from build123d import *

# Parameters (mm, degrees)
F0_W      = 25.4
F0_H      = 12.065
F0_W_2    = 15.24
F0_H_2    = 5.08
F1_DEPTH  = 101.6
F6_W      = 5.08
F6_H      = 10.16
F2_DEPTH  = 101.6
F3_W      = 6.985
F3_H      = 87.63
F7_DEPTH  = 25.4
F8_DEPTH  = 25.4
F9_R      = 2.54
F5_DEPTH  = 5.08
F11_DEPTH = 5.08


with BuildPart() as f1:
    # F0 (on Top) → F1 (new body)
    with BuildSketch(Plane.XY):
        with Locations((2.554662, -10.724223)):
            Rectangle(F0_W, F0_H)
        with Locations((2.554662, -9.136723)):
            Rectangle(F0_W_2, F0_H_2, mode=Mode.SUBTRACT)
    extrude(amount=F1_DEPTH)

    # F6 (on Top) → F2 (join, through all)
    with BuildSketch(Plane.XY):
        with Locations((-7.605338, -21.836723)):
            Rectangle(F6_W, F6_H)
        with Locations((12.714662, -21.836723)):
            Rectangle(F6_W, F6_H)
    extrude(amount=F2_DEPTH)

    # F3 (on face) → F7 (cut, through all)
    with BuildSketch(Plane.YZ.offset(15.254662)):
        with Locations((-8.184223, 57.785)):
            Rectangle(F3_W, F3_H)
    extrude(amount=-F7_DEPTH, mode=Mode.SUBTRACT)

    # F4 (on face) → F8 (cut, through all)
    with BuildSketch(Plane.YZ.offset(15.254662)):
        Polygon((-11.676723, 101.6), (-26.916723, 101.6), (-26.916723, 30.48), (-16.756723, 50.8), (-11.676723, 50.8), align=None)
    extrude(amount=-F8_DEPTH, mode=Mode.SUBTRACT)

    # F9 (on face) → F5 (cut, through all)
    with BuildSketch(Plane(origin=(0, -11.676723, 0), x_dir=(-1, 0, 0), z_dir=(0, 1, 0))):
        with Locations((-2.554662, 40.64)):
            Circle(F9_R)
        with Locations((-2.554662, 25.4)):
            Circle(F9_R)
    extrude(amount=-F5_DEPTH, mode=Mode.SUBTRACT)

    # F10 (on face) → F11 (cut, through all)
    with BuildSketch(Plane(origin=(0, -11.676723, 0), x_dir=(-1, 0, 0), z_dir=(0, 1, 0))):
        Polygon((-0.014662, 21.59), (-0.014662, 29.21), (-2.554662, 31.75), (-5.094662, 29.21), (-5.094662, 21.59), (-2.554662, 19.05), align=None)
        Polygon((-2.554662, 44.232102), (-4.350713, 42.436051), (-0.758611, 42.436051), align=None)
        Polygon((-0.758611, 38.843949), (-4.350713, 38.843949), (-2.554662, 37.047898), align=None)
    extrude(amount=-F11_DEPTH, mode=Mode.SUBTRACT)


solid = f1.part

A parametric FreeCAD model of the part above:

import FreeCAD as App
import Part
import Sketcher

V = App.Vector
Q = App.Units.Quantity


def add_polygon(sketch, points):
    """Adds a closed chain of lines whose ends are joined by coincident constraints."""
    first, n = sketch.GeometryCount, len(points)
    for a, b in zip(points, points[1:] + points[:1]):
        sketch.addGeometry(Part.LineSegment(App.Vector(*a, 0), App.Vector(*b, 0)), False)
    for i in range(n):
        sketch.addConstraint(Sketcher.Constraint("Coincident", first + i, 2, first + (i + 1) % n, 1))

doc = App.newDocument("Part")
body = doc.addObject("PartDesign::Body", "Body")

sketch1 = body.newObject("Sketcher::SketchObject", "Sketch")
sketch1.AttachmentSupport = (doc.getObject("XY_Plane"), [""])
sketch1.MapMode = "FlatFace"
add_polygon(sketch1, [(-10.145338, -4.691723), (-10.145338, -16.756723), (15.254662, -16.756723), (15.254662, -4.691723)])
add_polygon(sketch1, [(10.174662, -11.676723), (-5.065338, -11.676723), (-5.065338, -6.596723), (10.174662, -6.596723)])
sketch1.addConstraint([
    Sketcher.Constraint("Vertical", 0),
    Sketcher.Constraint("Horizontal", 1),
    Sketcher.Constraint("Vertical", 2),
    Sketcher.Constraint("Horizontal", 3),
    Sketcher.Constraint("Horizontal", 4),
    Sketcher.Constraint("Vertical", 5),
    Sketcher.Constraint("Horizontal", 6),
    Sketcher.Constraint("Vertical", 7),
    Sketcher.Constraint("DistanceX", 1, 1, 1, 2, Q("1 in")),
    Sketcher.Constraint("DistanceX", 4, 2, 4, 1, Q("0.6 in")),
    Sketcher.Constraint("DistanceY", 5, 1, 5, 2, Q("0.2 in")),
    Sketcher.Constraint("DistanceX", 0, 2, 4, 2, Q("0.2 in")),
    Sketcher.Constraint("DistanceY", 0, 2, 4, 2, Q("0.2 in")),
    Sketcher.Constraint("DistanceY", 0, 2, 0, 1, Q("0.475 in")),
    Sketcher.Constraint("DistanceX", 0, 2, -1, 1, Q("10.145338 mm")),
    Sketcher.Constraint("DistanceY", 0, 2, -1, 1, Q("16.756723 mm")),
])
pad1 = body.newObject("PartDesign::Pad", "Pad")
pad1.Profile = sketch1
pad1.Length = Q("4 in")

sketch2 = body.newObject("Sketcher::SketchObject", "Sketch001")
sketch2.AttachmentSupport = (doc.getObject("XY_Plane"), [""])
sketch2.MapMode = "FlatFace"
add_polygon(sketch2, [(-10.145338, -16.756723), (-10.145338, -26.916723), (-5.065338, -26.916723), (-5.065338, -16.756723)])
add_polygon(sketch2, [(10.174662, -16.756723), (10.174662, -26.916723), (15.254662, -26.916723), (15.254662, -16.756723)])
sketch2.addConstraint([
    Sketcher.Constraint("Vertical", 0),
    Sketcher.Constraint("Horizontal", 1),
    Sketcher.Constraint("Vertical", 2),
    Sketcher.Constraint("Horizontal", 3),
    Sketcher.Constraint("Vertical", 4),
    Sketcher.Constraint("Horizontal", 5),
    Sketcher.Constraint("Vertical", 6),
    Sketcher.Constraint("Horizontal", 7),
    Sketcher.Constraint("Horizontal", 1, 2, 4, 2),
    Sketcher.Constraint("Horizontal", 3, 2, 6, 2),
    Sketcher.Constraint("Equal", 3, 5),
    Sketcher.Constraint("DistanceX", 1, 1, 1, 2, Q("0.2 in")),
    Sketcher.Constraint("DistanceY", 0, 2, 0, 1, Q("0.4 in")),
    Sketcher.Constraint("DistanceX", 0, 2, 5, 2, Q("1 in")),
    Sketcher.Constraint("DistanceX", 0, 2, -1, 1, Q("10.145338 mm")),
    Sketcher.Constraint("DistanceY", 0, 2, -1, 1, Q("26.916723 mm")),
])
pad2 = body.newObject("PartDesign::Pad", "Pad001")
pad2.Profile = sketch2
pad2.Length = Q("4 in")

sketch3 = body.newObject("Sketcher::SketchObject", "Sketch002")
sketch3.AttachmentSupport = (doc.getObject("YZ_Plane"), [""])
sketch3.MapMode = "FlatFace"
sketch3.AttachmentOffset = App.Placement(V(0, 0, 15.254662), App.Rotation())
add_polygon(sketch3, [(-11.676723, 101.6), (-11.676723, 13.97), (-4.691723, 13.97), (-4.691723, 101.6)])
sketch3.addConstraint([
    Sketcher.Constraint("Vertical", 0),
    Sketcher.Constraint("Horizontal", 1),
    Sketcher.Constraint("Vertical", 2),
    Sketcher.Constraint("Horizontal", 3),
    Sketcher.Constraint("DistanceY", -1, 1, 2, 2, Q("4 in")),
    Sketcher.Constraint("DistanceY", 0, 2, 0, 1, Q("3.45 in")),
    Sketcher.Constraint("DistanceX", 1, 1, 1, 2, Q("0.275 in")),
    Sketcher.Constraint("DistanceX", 0, 2, -1, 1, Q("11.676723 mm")),
])
pocket1 = body.newObject("PartDesign::Pocket", "Pocket")
pocket1.Profile = sketch3
pocket1.Type = "ThroughAll"

sketch4 = body.newObject("Sketcher::SketchObject", "Sketch003")
sketch4.AttachmentSupport = (doc.getObject("YZ_Plane"), [""])
sketch4.MapMode = "FlatFace"
sketch4.AttachmentOffset = App.Placement(V(0, 0, 15.254662), App.Rotation())
add_polygon(sketch4, [(-11.676723, 101.6), (-26.916723, 101.6), (-26.916723, 30.48), (-16.756723, 50.8), (-11.676723, 50.8)])
sketch4.addConstraint([
    Sketcher.Constraint("Horizontal", 0),
    Sketcher.Constraint("Vertical", 1),
    Sketcher.Constraint("Horizontal", 3),
    Sketcher.Constraint("Vertical", 4),
    Sketcher.Constraint("DistanceY", 4, 1, 4, 2, Q("2 in")),
    Sketcher.Constraint("DistanceX", 0, 2, 0, 1, Q("0.6 in")),
    Sketcher.Constraint("DistanceX", 3, 1, 3, 2, Q("0.2 in")),
    Sketcher.Constraint("DistanceY", 1, 2, 1, 1, Q("2.8 in")),
    Sketcher.Constraint("DistanceY", -1, 1, 0, 2, Q("4 in")),
    Sketcher.Constraint("DistanceX", 0, 2, -1, 1, Q("26.916723 mm")),
])
pocket2 = body.newObject("PartDesign::Pocket", "Pocket001")
pocket2.Profile = sketch4
pocket2.Type = "ThroughAll"

sketch5 = body.newObject("Sketcher::SketchObject", "Sketch004")
sketch5.AttachmentSupport = (doc.getObject("XZ_Plane"), [""])
sketch5.MapMode = "FlatFace"
sketch5.AttachmentOffset = App.Placement(V(0, 0, 11.676723), App.Rotation())
sketch5.addGeometry([
    Part.Circle(V(2.554662, 40.64, 0), V(0, 0, 1), 2.54),
    Part.Circle(V(2.554662, 25.4, 0), V(0, 0, 1), 2.54),
], False)
sketch5.addConstraint([
    Sketcher.Constraint("Equal", 0, 1),
    Sketcher.Constraint("Vertical", 0, 3, 1, 3),
    Sketcher.Constraint("Diameter", 0, Q("0.2 in")),
    Sketcher.Constraint("DistanceY", -1, 1, 1, 3, Q("1 in")),
    Sketcher.Constraint("DistanceY", -1, 1, 0, 3, Q("1.6 in")),
    Sketcher.Constraint("DistanceX", -1, 1, 0, 3, Q("2.554662 mm")),
])
pocket3 = body.newObject("PartDesign::Pocket", "Pocket002")
pocket3.Profile = sketch5
pocket3.Type = "ThroughAll"
pocket3.Reversed = True

sketch6 = body.newObject("Sketcher::SketchObject", "Sketch005")
sketch6.AttachmentSupport = (doc.getObject("XZ_Plane"), [""])
sketch6.MapMode = "FlatFace"
sketch6.AttachmentOffset = App.Placement(V(0, 0, 11.676723), App.Rotation())
add_polygon(sketch6, [(0.014662, 21.59), (0.014662, 29.21), (2.554662, 31.75), (5.094662, 29.21), (5.094662, 21.59), (2.554662, 19.05)])
add_polygon(sketch6, [(2.554662, 44.232102), (4.350713, 42.436051), (0.758611, 42.436051)])
add_polygon(sketch6, [(0.758611, 38.843949), (4.350713, 38.843949), (2.554662, 37.047898)])
sketch6.addConstraint([
    Sketcher.Constraint("Vertical", 0),
    Sketcher.Constraint("Vertical", 3),
    Sketcher.Constraint("Horizontal", 7),
    Sketcher.Constraint("Horizontal", 9),
    Sketcher.Constraint("Perpendicular", 1, 2),
    Sketcher.Constraint("Perpendicular", 2, 4),
    Sketcher.Constraint("Perpendicular", 4, 5),
    Sketcher.Constraint("Parallel", 5, 6),
    Sketcher.Constraint("Perpendicular", 6, 8),
    Sketcher.Constraint("Parallel", 8, 10),
    Sketcher.Constraint("Perpendicular", 10, 11),
    Sketcher.Constraint("Horizontal", 0, 2, 2, 2),
    Sketcher.Constraint("Horizontal", 3, 2, 5, 2),
    Sketcher.Constraint("Vertical", 1, 2, 4, 2),
    Sketcher.Constraint("Vertical", 4, 2, 8, 2),
    Sketcher.Constraint("Vertical", 6, 2, 9, 2),
    Sketcher.Constraint("Vertical", 8, 2, 10, 2),
    Sketcher.Constraint("DistanceY", 0, 1, 0, 2, Q("0.3 in")),
    Sketcher.Constraint("Distance", 6, Q("0.1 in")),
    Sketcher.Constraint("DistanceX", 0, 2, 1, 2, Q("0.1 in")),
    Sketcher.Constraint("DistanceY", -1, 1, 0, 2, Q("1.15 in")),
    Sketcher.Constraint("DistanceY", -1, 1, 8, 2, Q("44.232102 mm")),
    Sketcher.Constraint("DistanceY", -1, 1, 10, 2, Q("37.047898 mm")),
    Sketcher.Constraint("DistanceX", -1, 1, 1, 2, Q("2.554662 mm")),
])
pocket4 = body.newObject("PartDesign::Pocket", "Pocket003")
pocket4.Profile = sketch6
pocket4.Type = "ThroughAll"
pocket4.Reversed = True

doc.recompute()
